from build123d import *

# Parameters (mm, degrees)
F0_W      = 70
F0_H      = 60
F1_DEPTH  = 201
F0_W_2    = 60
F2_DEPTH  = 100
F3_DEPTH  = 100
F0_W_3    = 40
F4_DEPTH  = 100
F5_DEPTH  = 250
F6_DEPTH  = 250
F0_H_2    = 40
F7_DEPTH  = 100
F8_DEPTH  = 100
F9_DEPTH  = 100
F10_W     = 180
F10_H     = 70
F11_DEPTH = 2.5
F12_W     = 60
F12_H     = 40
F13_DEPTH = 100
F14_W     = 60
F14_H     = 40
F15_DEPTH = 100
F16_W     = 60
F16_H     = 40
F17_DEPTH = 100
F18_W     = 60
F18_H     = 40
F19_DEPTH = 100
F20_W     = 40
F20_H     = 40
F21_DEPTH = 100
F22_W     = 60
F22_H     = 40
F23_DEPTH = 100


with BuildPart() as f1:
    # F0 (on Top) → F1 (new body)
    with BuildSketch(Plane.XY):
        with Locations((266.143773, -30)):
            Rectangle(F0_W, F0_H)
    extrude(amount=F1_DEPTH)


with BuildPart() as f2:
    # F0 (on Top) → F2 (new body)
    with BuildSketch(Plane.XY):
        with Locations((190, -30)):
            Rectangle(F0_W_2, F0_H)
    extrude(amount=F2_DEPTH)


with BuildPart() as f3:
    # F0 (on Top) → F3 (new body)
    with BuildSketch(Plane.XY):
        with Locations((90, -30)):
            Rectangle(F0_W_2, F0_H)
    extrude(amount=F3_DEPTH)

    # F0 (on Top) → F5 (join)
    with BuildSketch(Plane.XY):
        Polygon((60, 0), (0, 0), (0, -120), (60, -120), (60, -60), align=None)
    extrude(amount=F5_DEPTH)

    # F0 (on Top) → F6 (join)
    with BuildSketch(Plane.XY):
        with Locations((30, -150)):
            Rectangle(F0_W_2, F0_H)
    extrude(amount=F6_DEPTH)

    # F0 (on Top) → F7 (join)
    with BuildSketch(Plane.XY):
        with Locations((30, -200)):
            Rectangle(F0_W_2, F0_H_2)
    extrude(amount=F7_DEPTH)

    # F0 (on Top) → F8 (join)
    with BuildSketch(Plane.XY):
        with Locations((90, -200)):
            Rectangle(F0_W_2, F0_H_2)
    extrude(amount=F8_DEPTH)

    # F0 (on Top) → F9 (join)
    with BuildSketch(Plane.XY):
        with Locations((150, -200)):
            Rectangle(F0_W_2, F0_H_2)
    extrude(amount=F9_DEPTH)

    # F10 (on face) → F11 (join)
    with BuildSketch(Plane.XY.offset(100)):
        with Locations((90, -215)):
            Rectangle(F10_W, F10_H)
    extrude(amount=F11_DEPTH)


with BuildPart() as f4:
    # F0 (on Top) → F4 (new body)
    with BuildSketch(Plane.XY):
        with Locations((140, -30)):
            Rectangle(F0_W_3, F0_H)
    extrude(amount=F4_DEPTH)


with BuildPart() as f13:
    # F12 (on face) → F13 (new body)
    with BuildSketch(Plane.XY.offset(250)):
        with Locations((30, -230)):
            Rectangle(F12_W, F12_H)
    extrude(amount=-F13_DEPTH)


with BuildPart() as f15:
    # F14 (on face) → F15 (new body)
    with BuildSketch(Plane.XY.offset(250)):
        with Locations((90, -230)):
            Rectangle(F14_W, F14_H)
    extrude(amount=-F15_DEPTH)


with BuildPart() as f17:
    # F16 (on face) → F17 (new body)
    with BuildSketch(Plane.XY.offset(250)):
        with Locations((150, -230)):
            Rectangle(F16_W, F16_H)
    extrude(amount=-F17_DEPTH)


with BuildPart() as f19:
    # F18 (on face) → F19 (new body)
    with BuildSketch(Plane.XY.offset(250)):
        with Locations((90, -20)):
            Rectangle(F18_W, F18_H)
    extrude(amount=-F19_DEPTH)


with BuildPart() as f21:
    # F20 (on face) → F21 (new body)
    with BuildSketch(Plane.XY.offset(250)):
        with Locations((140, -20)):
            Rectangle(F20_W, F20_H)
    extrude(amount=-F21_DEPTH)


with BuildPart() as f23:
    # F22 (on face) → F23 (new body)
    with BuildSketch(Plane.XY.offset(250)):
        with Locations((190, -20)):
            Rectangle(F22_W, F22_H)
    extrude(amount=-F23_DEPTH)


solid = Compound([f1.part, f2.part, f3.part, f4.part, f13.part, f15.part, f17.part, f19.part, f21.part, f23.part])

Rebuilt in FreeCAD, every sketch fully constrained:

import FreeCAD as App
import Part
import Sketcher
from FreeCAD import Vector
Q = App.Units.Quantity


def add_polygon(sketch, points):
    """Adds a closed chain of lines whose ends are joined by coincident constraints."""
    first, n = sketch.GeometryCount, len(points)
    for a, b in zip(points, points[1:] + points[:1]):
        sketch.addGeometry(Part.LineSegment(App.Vector(*a, 0), App.Vector(*b, 0)), False)
    for i in range(n):
        sketch.addConstraint(Sketcher.Constraint("Coincident", first + i, 2, first + (i + 1) % n, 1))

doc = App.newDocument("Part")
body = doc.addObject("PartDesign::Body", "Body")

sketch1 = body.newObject("Sketcher::SketchObject", "Sketch")
sketch1.AttachmentSupport = (doc.getObject("XY_Plane"), [""])
sketch1.MapMode = "FlatFace"
add_polygon(sketch1, [(231, 0), (231, -60), (301, -60), (301, 0)])
sketch1.addConstraint(Sketcher.Constraint("Vertical", 0))
sketch1.addConstraint(Sketcher.Constraint("Horizontal", 1))
sketch1.addConstraint(Sketcher.Constraint("Vertical", 2))
sketch1.addConstraint(Sketcher.Constraint("Horizontal", 3))
sketch1.addConstraint(Sketcher.Constraint("PointOnObject", 2, 2, -1))
sketch1.addConstraint(Sketcher.Constraint("DistanceX", 1, 1, 1, 2, Q("70 mm")))
sketch1.addConstraint(Sketcher.Constraint("DistanceY", 0, 2, 0, 1, Q("60 mm")))
sketch1.addConstraint(Sketcher.Constraint("DistanceX", -1, 1, 0, 2, Q("231.143773 mm")))
pad1 = body.newObject("PartDesign::Pad", "Pad")
pad1.Profile = sketch1
pad1.Length = 201
body2 = doc.addObject("PartDesign::Body", "Body001")

sketch2 = body2.newObject("Sketcher::SketchObject", "Sketch001")
sketch2.AttachmentSupport = (doc.getObject("XY_Plane001"), [""])
sketch2.MapMode = "FlatFace"
add_polygon(sketch2, [(160, 0), (160, -60), (220, -60), (220, 0)])
sketch2.addConstraint(Sketcher.Constraint("Vertical", 0))
sketch2.addConstraint(Sketcher.Constraint("Horizontal", 1))
sketch2.addConstraint(Sketcher.Constraint("Vertical", 2))
sketch2.addConstraint(Sketcher.Constraint("Horizontal", 3))
sketch2.addConstraint(Sketcher.Constraint("PointOnObject", 2, 2, -1))
sketch2.addConstraint(Sketcher.Constraint("Equal", 3, 0))
sketch2.addConstraint(Sketcher.Constraint("DistanceX", 1, 1, 1, 2, Q("60 mm")))
sketch2.addConstraint(Sketcher.Constraint("DistanceX", -1, 1, 0, 2, Q("160 mm")))
pad2 = body2.newObject("PartDesign::Pad", "Pad001")
pad2.Profile = sketch2
pad2.Length = 100
body3 = doc.addObject("PartDesign::Body", "Body002")

sketch3 = body3.newObject("Sketcher::SketchObject", "Sketch002")
sketch3.AttachmentSupport = (doc.getObject("XY_Plane002"), [""])
sketch3.MapMode = "FlatFace"
add_polygon(sketch3, [(60, 0), (60, -60), (120, -60), (120, 0)])
sketch3.addConstraint(Sketcher.Constraint("Vertical", 0))
sketch3.addConstraint(Sketcher.Constraint("Horizontal", 1))
sketch3.addConstraint(Sketcher.Constraint("Vertical", 2))
sketch3.addConstraint(Sketcher.Constraint("Horizontal", 3))
sketch3.addConstraint(Sketcher.Constraint("PointOnObject", 2, 2, -1))
sketch3.addConstraint(Sketcher.Constraint("Equal", 3, 0))
sketch3.addConstraint(Sketcher.Constraint("DistanceX", 1, 1, 1, 2, Q("60 mm")))
sketch3.addConstraint(Sketcher.Constraint("DistanceX", -1, 1, 0, 2, Q("60 mm")))
pad3 = body3.newObject("PartDesign::Pad", "Pad002")
pad3.Profile = sketch3
pad3.Length = 100

sketch4 = body3.newObject("Sketcher::SketchObject", "Sketch003")
sketch4.AttachmentSupport = (doc.getObject("XY_Plane002"), [""])
sketch4.MapMode = "FlatFace"
add_polygon(sketch4, [(60, 0), (0, 0), (0, -120), (60, -120)])
sketch4.addConstraint(Sketcher.Constraint("Horizontal", 0))
sketch4.addConstraint(Sketcher.Constraint("Vertical", 1))
sketch4.addConstraint(Sketcher.Constraint("Horizontal", 2))
sketch4.addConstraint(Sketcher.Constraint("Vertical", 3))
sketch4.addConstraint(Sketcher.Constraint("Coincident", 0, 2, -1, 1))
sketch4.addConstraint(Sketcher.Constraint("DistanceX", 0, 2, 0, 1, Q("60 mm")))
sketch4.addConstraint(Sketcher.Constraint("DistanceY", 1, 2, 1, 1, Q("120 mm")))
pad4 = body3.newObject("PartDesign::Pad", "Pad003")
pad4.Profile = sketch4
pad4.Length = 250

sketch5 = body3.newObject("Sketcher::SketchObject", "Sketch004")
sketch5.AttachmentSupport = (doc.getObject("XY_Plane002"), [""])
sketch5.MapMode = "FlatFace"
add_polygon(sketch5, [(0, -120), (0, -180), (60, -180), (60, -120)])
sketch5.addConstraint(Sketcher.Constraint("Vertical", 0))
sketch5.addConstraint(Sketcher.Constraint("Horizontal", 1))
sketch5.addConstraint(Sketcher.Constraint("Vertical", 2))
sketch5.addConstraint(Sketcher.Constraint("Horizontal", 3))
sketch5.addConstraint(Sketcher.Constraint("PointOnObject", 0, 2, -2))
sketch5.addConstraint(Sketcher.Constraint("Equal", 3, 0))
sketch5.addConstraint(Sketcher.Constraint("DistanceX", 1, 1, 1, 2, Q("60 mm")))
sketch5.addConstraint(Sketcher.Constraint("DistanceY", 0, 2, -1, 1, Q("180 mm")))
pad5 = body3.newObject("PartDesign::Pad", "Pad004")
pad5.Profile = sketch5
pad5.Length = 250

sketch6 = body3.newObject("Sketcher::SketchObject", "Sketch005")
sketch6.AttachmentSupport = (doc.getObject("XY_Plane002"), [""])
sketch6.MapMode = "FlatFace"
add_polygon(sketch6, [(0, -180), (0, -220), (60, -220), (60, -180)])
sketch6.addConstraint(Sketcher.Constraint("Vertical", 0))
sketch6.addConstraint(Sketcher.Constraint("Horizontal", 1))
sketch6.addConstraint(Sketcher.Constraint("Vertical", 2))
sketch6.addConstraint(Sketcher.Constraint("Horizontal", 3))
sketch6.addConstraint(Sketcher.Constraint("PointOnObject", 0, 2, -2))
sketch6.addConstraint(Sketcher.Constraint("DistanceX", 1, 1, 1, 2, Q("60 mm")))
sketch6.addConstraint(Sketcher.Constraint("DistanceY", 0, 2, 0, 1, Q("40 mm")))
sketch6.addConstraint(Sketcher.Constraint("DistanceY", 0, 2, -1, 1, Q("220 mm")))
pad6 = body3.newObject("PartDesign::Pad", "Pad005")
pad6.Profile = sketch6
pad6.Length = 100

sketch7 = body3.newObject("Sketcher::SketchObject", "Sketch006")
sketch7.AttachmentSupport = (doc.getObject("XY_Plane002"), [""])
sketch7.MapMode = "FlatFace"
add_polygon(sketch7, [(60, -180), (60, -220), (120, -220), (120, -180)])
sketch7.addConstraint(Sketcher.Constraint("Vertical", 0))
sketch7.addConstraint(Sketcher.Constraint("Horizontal", 1))
sketch7.addConstraint(Sketcher.Constraint("Vertical", 2))
sketch7.addConstraint(Sketcher.Constraint("Horizontal", 3))
sketch7.addConstraint(Sketcher.Constraint("DistanceX", 1, 1, 1, 2, Q("60 mm")))
sketch7.addConstraint(Sketcher.Constraint("DistanceY", 0, 2, 0, 1, Q("40 mm")))
sketch7.addConstraint(Sketcher.Constraint("DistanceX", -1, 1, 0, 2, Q("60 mm")))
sketch7.addConstraint(Sketcher.Constraint("DistanceY", 0, 2, -1, 1, Q("220 mm")))
pad7 = body3.newObject("PartDesign::Pad", "Pad006")
pad7.Profile = sketch7
pad7.Length = 100

sketch8 = body3.newObject("Sketcher::SketchObject", "Sketch007")
sketch8.AttachmentSupport = (doc.getObject("XY_Plane002"), [""])
sketch8.MapMode = "FlatFace"
add_polygon(sketch8, [(120, -180), (120, -220), (180, -220), (180, -180)])
sketch8.addConstraint(Sketcher.Constraint("Vertical", 0))
sketch8.addConstraint(Sketcher.Constraint("Horizontal", 1))
sketch8.addConstraint(Sketcher.Constraint("Vertical", 2))
sketch8.addConstraint(Sketcher.Constraint("Horizontal", 3))
sketch8.addConstraint(Sketcher.Constraint("DistanceX", 1, 1, 1, 2, Q("60 mm")))
sketch8.addConstraint(Sketcher.Constraint("DistanceY", 0, 2, 0, 1, Q("40 mm")))
sketch8.addConstraint(Sketcher.Constraint("DistanceX", -1, 1, 0, 2, Q("120 mm")))
sketch8.addConstraint(Sketcher.Constraint("DistanceY", 0, 2, -1, 1, Q("220 mm")))
pad8 = body3.newObject("PartDesign::Pad", "Pad007")
pad8.Profile = sketch8
pad8.Length = 100

sketch9 = body3.newObject("Sketcher::SketchObject", "Sketch008")
sketch9.AttachmentSupport = (doc.getObject("XY_Plane002"), [""])
sketch9.MapMode = "FlatFace"
sketch9.AttachmentOffset = App.Placement(Vector(0, 0, 100), App.Rotation())
add_polygon(sketch9, [(0, -180), (0, -250), (180, -250), (180, -180)])
sketch9.addConstraint(Sketcher.Constraint("Vertical", 0))
sketch9.addConstraint(Sketcher.Constraint("Horizontal", 1))
sketch9.addConstraint(Sketcher.Constraint("Vertical", 2))
sketch9.addConstraint(Sketcher.Constraint("Horizontal", 3))
sketch9.addConstraint(Sketcher.Constraint("PointOnObject", 0, 2, -2))
sketch9.addConstraint(Sketcher.Constraint("DistanceX", 1, 1, 1, 2, Q("180 mm")))
sketch9.addConstraint(Sketcher.Constraint("DistanceY", 0, 2, 0, 1, Q("70 mm")))
sketch9.addConstraint(Sketcher.Constraint("DistanceY", 0, 2, -1, 1, Q("250 mm")))
pad9 = body3.newObject("PartDesign::Pad", "Pad008")
pad9.Profile = sketch9
pad9.Length = 2.5
body4 = doc.addObject("PartDesign::Body", "Body003")

sketch10 = body4.newObject("Sketcher::SketchObject", "Sketch009")
sketch10.AttachmentSupport = (doc.getObject("XY_Plane003"), [""])
sketch10.MapMode = "FlatFace"
add_polygon(sketch10, [(120, 0), (120, -60), (160, -60), (160, 0)])
sketch10.addConstraint(Sketcher.Constraint("Vertical", 0))
sketch10.addConstraint(Sketcher.Constraint("Horizontal", 1))
sketch10.addConstraint(Sketcher.Constraint("Vertical", 2))
sketch10.addConstraint(Sketcher.Constraint("Horizontal", 3))
sketch10.addConstraint(Sketcher.Constraint("PointOnObject", 2, 2, -1))
sketch10.addConstraint(Sketcher.Constraint("DistanceX", 1, 1, 1, 2, Q("40 mm")))
sketch10.addConstraint(Sketcher.Constraint("DistanceY", 0, 2, 0, 1, Q("60 mm")))
sketch10.addConstraint(Sketcher.Constraint("DistanceX", -1, 1, 0, 2, Q("120 mm")))
pad10 = body4.newObject("PartDesign::Pad", "Pad009")
pad10.Profile = sketch10
pad10.Length = 100
body5 = doc.addObject("PartDesign::Body", "Body004")

sketch11 = body5.newObject("Sketcher::SketchObject", "Sketch010")
sketch11.AttachmentSupport = (doc.getObject("XY_Plane004"), [""])
sketch11.MapMode = "FlatFace"
sketch11.AttachmentOffset = App.Placement(Vector(0, 0, 250), App.Rotation())
add_polygon(sketch11, [(0, -210), (0, -250), (60, -250), (60, -210)])
sketch11.addConstraint(Sketcher.Constraint("Vertical", 0))
sketch11.addConstraint(Sketcher.Constraint("Horizontal", 1))
sketch11.addConstraint(Sketcher.Constraint("Vertical", 2))
sketch11.addConstraint(Sketcher.Constraint("Horizontal", 3))
sketch11.addConstraint(Sketcher.Constraint("PointOnObject", 0, 2, -2))
sketch11.addConstraint(Sketcher.Constraint("DistanceX", 1, 1, 1, 2, Q("60 mm")))
sketch11.addConstraint(Sketcher.Constraint("DistanceY", 0, 2, 0, 1, Q("40 mm")))
sketch11.addConstraint(Sketcher.Constraint("DistanceY", 0, 2, -1, 1, Q("250 mm")))
pad11 = body5.newObject("PartDesign::Pad", "Pad010")
pad11.Profile = sketch11
pad11.Length = 100
pad11.Reversed = True
body6 = doc.addObject("PartDesign::Body", "Body005")

sketch12 = body6.newObject("Sketcher::SketchObject", "Sketch011")
sketch12.AttachmentSupport = (doc.getObject("XY_Plane005"), [""])
sketch12.MapMode = "FlatFace"
sketch12.AttachmentOffset = App.Placement(Vector(0, 0, 250), App.Rotation())
add_polygon(sketch12, [(60, -210), (60, -250), (120, -250), (120, -210)])
sketch12.addConstraint(Sketcher.Constraint("Vertical", 0))
sketch12.addConstraint(Sketcher.Constraint("Horizontal", 1))
sketch12.addConstraint(Sketcher.Constraint("Vertical", 2))
sketch12.addConstraint(Sketcher.Constraint("Horizontal", 3))
sketch12.addConstraint(Sketcher.Constraint("DistanceX", 1, 1, 1, 2, Q("60 mm")))
sketch12.addConstraint(Sketcher.Constraint("DistanceY", 0, 2, 0, 1, Q("40 mm")))
sketch12.addConstraint(Sketcher.Constraint("DistanceX", -1, 1, 0, 2, Q("60 mm")))
sketch12.addConstraint(Sketcher.Constraint("DistanceY", 0, 2, -1, 1, Q("250 mm")))
pad12 = body6.newObject("PartDesign::Pad", "Pad011")
pad12.Profile = sketch12
pad12.Length = 100
pad12.Reversed = True
body7 = doc.addObject("PartDesign::Body", "Body006")

sketch13 = body7.newObject("Sketcher::SketchObject", "Sketch012")
sketch13.AttachmentSupport = (doc.getObject("XY_Plane006"), [""])
sketch13.MapMode = "FlatFace"
sketch13.AttachmentOffset = App.Placement(Vector(0, 0, 250), App.Rotation())
add_polygon(sketch13, [(120, -210), (120, -250), (180, -250), (180, -210)])
sketch13.addConstraint(Sketcher.Constraint("Vertical", 0))
sketch13.addConstraint(Sketcher.Constraint("Horizontal", 1))
sketch13.addConstraint(Sketcher.Constraint("Vertical", 2))
sketch13.addConstraint(Sketcher.Constraint("Horizontal", 3))
sketch13.addConstraint(Sketcher.Constraint("DistanceX", 1, 1, 1, 2, Q("60 mm")))
sketch13.addConstraint(Sketcher.Constraint("DistanceY", 0, 2, 0, 1, Q("40 mm")))
sketch13.addConstraint(Sketcher.Constraint("DistanceX", -1, 1, 0, 2, Q("120 mm")))
sketch13.addConstraint(Sketcher.Constraint("DistanceY", 0, 2, -1, 1, Q("250 mm")))
pad13 = body7.newObject("PartDesign::Pad", "Pad012")
pad13.Profile = sketch13
pad13.Length = 100
pad13.Reversed = True
body8 = doc.addObject("PartDesign::Body", "Body007")

sketch14 = body8.newObject("Sketcher::SketchObject", "Sketch013")
sketch14.AttachmentSupport = (doc.getObject("XY_Plane007"), [""])
sketch14.MapMode = "FlatFace"
sketch14.AttachmentOffset = App.Placement(Vector(0, 0, 250), App.Rotation())
add_polygon(sketch14, [(60, 0), (60, -40), (120, -40), (120, 0)])
sketch14.addConstraint(Sketcher.Constraint("Vertical", 0))
sketch14.addConstraint(Sketcher.Constraint("Horizontal", 1))
sketch14.addConstraint(Sketcher.Constraint("Vertical", 2))
sketch14.addConstraint(Sketcher.Constraint("Horizontal", 3))
sketch14.addConstraint(Sketcher.Constraint("PointOnObject", 2, 2, -1))
sketch14.addConstraint(Sketcher.Constraint("DistanceX", 1, 1, 1, 2, Q("60 mm")))
sketch14.addConstraint(Sketcher.Constraint("DistanceY", 0, 2, 0, 1, Q("40 mm")))
sketch14.addConstraint(Sketcher.Constraint("DistanceX", -1, 1, 0, 2, Q("60 mm")))
pad14 = body8.newObject("PartDesign::Pad", "Pad013")
pad14.Profile = sketch14
pad14.Length = 100
pad14.Reversed = True
body9 = doc.addObject("PartDesign::Body", "Body008")

sketch15 = body9.newObject("Sketcher::SketchObject", "Sketch014")
sketch15.AttachmentSupport = (doc.getObject("XY_Plane008"), [""])
sketch15.MapMode = "FlatFace"
sketch15.AttachmentOffset = App.Placement(Vector(0, 0, 250), App.Rotation())
add_polygon(sketch15, [(120, 0), (120, -40), (160, -40), (160, 0)])
sketch15.addConstraint(Sketcher.Constraint("Vertical", 0))
sketch15.addConstraint(Sketcher.Constraint("Horizontal", 1))
sketch15.addConstraint(Sketcher.Constraint("Vertical", 2))
sketch15.addConstraint(Sketcher.Constraint("Horizontal", 3))
sketch15.addConstraint(Sketcher.Constraint("PointOnObject", 2, 2, -1))
sketch15.addConstraint(Sketcher.Constraint("Equal", 3, 0))
sketch15.addConstraint(Sketcher.Constraint("DistanceX", 1, 1, 1, 2, Q("40 mm")))
sketch15.addConstraint(Sketcher.Constraint("DistanceX", -1, 1, 0, 2, Q("120 mm")))
pad15 = body9.newObject("PartDesign::Pad", "Pad014")
pad15.Profile = sketch15
pad15.Length = 100
pad15.Reversed = True
body10 = doc.addObject("PartDesign::Body", "Body009")

sketch16 = body10.newObject("Sketcher::SketchObject", "Sketch015")
sketch16.AttachmentSupport = (doc.getObject("XY_Plane009"), [""])
sketch16.MapMode = "FlatFace"
sketch16.AttachmentOffset = App.Placement(Vector(0, 0, 250), App.Rotation())
add_polygon(sketch16, [(160, 0), (160, -40), (220, -40), (220, 0)])
sketch16.addConstraint(Sketcher.Constraint("Vertical", 0))
sketch16.addConstraint(Sketcher.Constraint("Horizontal", 1))
sketch16.addConstraint(Sketcher.Constraint("Vertical", 2))
sketch16.addConstraint(Sketcher.Constraint("Horizontal", 3))
sketch16.addConstraint(Sketcher.Constraint("PointOnObject", 2, 2, -1))
sketch16.addConstraint(Sketcher.Constraint("DistanceX", 1, 1, 1, 2, Q("60 mm")))
sketch16.addConstraint(Sketcher.Constraint("DistanceY", 0, 2, 0, 1, Q("40 mm")))
sketch16.addConstraint(Sketcher.Constraint("DistanceX", -1, 1, 0, 2, Q("160 mm")))
pad16 = body10.newObject("PartDesign::Pad", "Pad015")
pad16.Profile = sketch16
pad16.Length = 100
pad16.Reversed = True

doc.recompute()
